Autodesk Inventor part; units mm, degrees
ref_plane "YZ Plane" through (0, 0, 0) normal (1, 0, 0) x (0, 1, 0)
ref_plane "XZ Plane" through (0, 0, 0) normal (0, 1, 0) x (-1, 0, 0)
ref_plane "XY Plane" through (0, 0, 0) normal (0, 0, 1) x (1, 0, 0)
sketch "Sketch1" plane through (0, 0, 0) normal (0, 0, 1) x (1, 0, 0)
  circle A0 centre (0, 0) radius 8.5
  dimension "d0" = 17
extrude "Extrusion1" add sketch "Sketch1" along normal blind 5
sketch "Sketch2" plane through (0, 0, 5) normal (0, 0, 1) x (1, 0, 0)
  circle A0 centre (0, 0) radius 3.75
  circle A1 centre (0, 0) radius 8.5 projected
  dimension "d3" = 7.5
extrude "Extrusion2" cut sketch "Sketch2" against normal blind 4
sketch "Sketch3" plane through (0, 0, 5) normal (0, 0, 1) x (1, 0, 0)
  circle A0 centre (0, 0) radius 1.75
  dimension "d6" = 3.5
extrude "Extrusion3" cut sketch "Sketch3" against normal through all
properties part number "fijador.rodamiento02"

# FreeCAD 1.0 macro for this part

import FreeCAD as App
import Part
import Sketcher

V = App.Vector

doc = App.newDocument("Part")
body = doc.addObject("PartDesign::Body", "Body")

sketch1 = body.newObject("Sketcher::SketchObject", "Sketch")
sketch1.AttachmentSupport = (doc.getObject("XY_Plane"), [""])
sketch1.MapMode = "FlatFace"
sketch1.addGeometry(Part.Circle(V(0, 0, 0), V(0, 0, 1), 8.5), False)
sketch1.addConstraint([
    Sketcher.Constraint("Coincident", 0, 3, -1, 1),
    Sketcher.Constraint("Diameter", 0, 17.0),
])
pad1 = body.newObject("PartDesign::Pad", "Pad")
pad1.Profile = sketch1
pad1.Length = 5

sketch2 = body.newObject("Sketcher::SketchObject", "Sketch001")
sketch2.AttachmentSupport = (doc.getObject("XY_Plane"), [""])
sketch2.MapMode = "FlatFace"
sketch2.AttachmentOffset = App.Placement(V(0, 0, 5), App.Rotation())
sketch2.addGeometry([
    Part.Circle(V(0, 0, 0), V(0, 0, 1), 8.5),
    Part.Circle(V(0, 0, 0), V(0, 0, 1), 3.75),
], False)
sketch2.addConstraint([
    Sketcher.Constraint("Coincident", 0, 3, -1, 1),
    Sketcher.Constraint("Coincident", 1, 3, -1, 1),
    Sketcher.Constraint("Diameter", 1, 7.5),
    Sketcher.Constraint("Diameter", 0, 17.0),
])
pocket1 = body.newObject("PartDesign::Pocket", "Pocket")
pocket1.Profile = sketch2
pocket1.Length = 4

sketch3 = body.newObject("Sketcher::SketchObject", "Sketch002")
sketch3.AttachmentSupport = (doc.getObject("XY_Plane"), [""])
sketch3.MapMode = "FlatFace"
sketch3.AttachmentOffset = App.Placement(V(0, 0, 5), App.Rotation())
sketch3.addGeometry(Part.Circle(V(0, 0, 0), V(0, 0, 1), 1.75), False)
sketch3.addConstraint([
    Sketcher.Constraint("Coincident", 0, 3, -1, 1),
    Sketcher.Constraint("Diameter", 0, 3.5),
])
pocket2 = body.newObject("PartDesign::Pocket", "Pocket001")
pocket2.Profile = sketch3
pocket2.Type = "ThroughAll"

doc.recompute()
